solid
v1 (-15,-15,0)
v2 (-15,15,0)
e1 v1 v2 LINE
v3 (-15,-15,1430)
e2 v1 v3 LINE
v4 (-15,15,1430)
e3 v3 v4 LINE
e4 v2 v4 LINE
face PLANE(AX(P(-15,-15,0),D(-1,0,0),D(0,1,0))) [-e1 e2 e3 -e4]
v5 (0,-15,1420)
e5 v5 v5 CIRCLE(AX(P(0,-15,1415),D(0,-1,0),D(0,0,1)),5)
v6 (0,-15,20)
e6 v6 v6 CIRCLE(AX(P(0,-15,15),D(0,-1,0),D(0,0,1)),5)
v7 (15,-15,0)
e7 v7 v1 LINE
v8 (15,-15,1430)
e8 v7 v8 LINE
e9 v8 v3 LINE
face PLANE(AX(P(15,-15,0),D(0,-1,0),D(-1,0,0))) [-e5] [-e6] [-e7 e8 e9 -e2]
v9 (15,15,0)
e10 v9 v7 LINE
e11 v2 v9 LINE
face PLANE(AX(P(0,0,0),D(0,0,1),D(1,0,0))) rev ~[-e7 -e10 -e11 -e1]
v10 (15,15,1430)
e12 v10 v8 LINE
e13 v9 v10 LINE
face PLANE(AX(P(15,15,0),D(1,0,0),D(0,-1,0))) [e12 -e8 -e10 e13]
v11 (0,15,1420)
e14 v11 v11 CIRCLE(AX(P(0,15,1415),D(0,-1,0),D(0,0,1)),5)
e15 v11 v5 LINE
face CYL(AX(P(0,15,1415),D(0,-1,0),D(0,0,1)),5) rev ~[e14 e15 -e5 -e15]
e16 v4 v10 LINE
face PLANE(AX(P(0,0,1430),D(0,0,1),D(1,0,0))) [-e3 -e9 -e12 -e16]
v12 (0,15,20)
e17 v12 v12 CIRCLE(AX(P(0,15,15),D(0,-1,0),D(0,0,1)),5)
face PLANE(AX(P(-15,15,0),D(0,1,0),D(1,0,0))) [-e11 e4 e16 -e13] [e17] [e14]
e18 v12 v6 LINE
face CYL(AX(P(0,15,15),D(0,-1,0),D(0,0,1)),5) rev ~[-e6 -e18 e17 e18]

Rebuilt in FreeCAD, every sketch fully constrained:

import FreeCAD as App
import Part
import Sketcher
Q = App.Units.Quantity

doc = App.newDocument("Part")
body = doc.addObject("PartDesign::Body", "Body")

sketch1 = body.newObject("Sketcher::SketchObject", "Sketch")
sketch1.AttachmentSupport = (doc.getObject("XY_Plane"), [""])
sketch1.MapMode = "FlatFace"
sketch1.addGeometry([
    Part.LineSegment(App.Vector(15, 15, 0), App.Vector(-15, 15, 0)),
    Part.LineSegment(App.Vector(-15, 15, 0), App.Vector(-15, -15, 0)),
    Part.LineSegment(App.Vector(-15, -15, 0), App.Vector(15, -15, 0)),
    Part.LineSegment(App.Vector(15, -15, 0), App.Vector(15, 15, 0)),
], False)
sketch1.addConstraint([
    Sketcher.Constraint("Coincident", 0, 2, 1, 1),
    Sketcher.Constraint("Coincident", 1, 2, 2, 1),
    Sketcher.Constraint("Coincident", 2, 2, 3, 1),
    Sketcher.Constraint("Coincident", 3, 2, 0, 1),
    Sketcher.Constraint("Horizontal", 0),
    Sketcher.Constraint("Vertical", 1),
    Sketcher.Constraint("Horizontal", 2),
    Sketcher.Constraint("Vertical", 3),
    Sketcher.Constraint("Symmetric", 0, 2, 2, 2, -1, 1),
    Sketcher.Constraint("Equal", 2, 1),
    Sketcher.Constraint("DistanceX", 0, 2, 0, 1, Q("30 mm")),
])
pad1 = body.newObject("PartDesign::Pad", "Pad")
pad1.Profile = sketch1
pad1.Length = 1430

sketch2 = body.newObject("Sketcher::SketchObject", "Sketch001")
sketch2.AttachmentSupport = (doc.getObject("XZ_Plane"), [""])
sketch2.MapMode = "FlatFace"
sketch2.AttachmentOffset = App.Placement(App.Vector(0, 0, -15), App.Rotation())
sketch2.addGeometry([
    Part.Circle(App.Vector(0, 1415, 0), App.Vector(0, 0, 1), 5),
    Part.Circle(App.Vector(0, 15, 0), App.Vector(0, 0, 1), 5),
], False)
sketch2.addConstraint([
    Sketcher.Constraint("Equal", 0, 1),
    Sketcher.Constraint("PointOnObject", 0, 3, -2),
    Sketcher.Constraint("PointOnObject", 1, 3, -2),
    Sketcher.Constraint("Diameter", 0, Q("10 mm")),
    Sketcher.Constraint("DistanceY", -1, 1, 0, 3, Q("1415 mm")),
    Sketcher.Constraint("DistanceY", -1, 1, 1, 3, Q("15 mm")),
])
doc.recompute()
hole = body.newObject("PartDesign::Hole", "Hole")
hole.Profile = sketch2
hole.ThreadType = "None"
hole.Diameter = 10
hole.DepthType = "ThroughAll"
hole.Reversed = True

doc.recompute()
